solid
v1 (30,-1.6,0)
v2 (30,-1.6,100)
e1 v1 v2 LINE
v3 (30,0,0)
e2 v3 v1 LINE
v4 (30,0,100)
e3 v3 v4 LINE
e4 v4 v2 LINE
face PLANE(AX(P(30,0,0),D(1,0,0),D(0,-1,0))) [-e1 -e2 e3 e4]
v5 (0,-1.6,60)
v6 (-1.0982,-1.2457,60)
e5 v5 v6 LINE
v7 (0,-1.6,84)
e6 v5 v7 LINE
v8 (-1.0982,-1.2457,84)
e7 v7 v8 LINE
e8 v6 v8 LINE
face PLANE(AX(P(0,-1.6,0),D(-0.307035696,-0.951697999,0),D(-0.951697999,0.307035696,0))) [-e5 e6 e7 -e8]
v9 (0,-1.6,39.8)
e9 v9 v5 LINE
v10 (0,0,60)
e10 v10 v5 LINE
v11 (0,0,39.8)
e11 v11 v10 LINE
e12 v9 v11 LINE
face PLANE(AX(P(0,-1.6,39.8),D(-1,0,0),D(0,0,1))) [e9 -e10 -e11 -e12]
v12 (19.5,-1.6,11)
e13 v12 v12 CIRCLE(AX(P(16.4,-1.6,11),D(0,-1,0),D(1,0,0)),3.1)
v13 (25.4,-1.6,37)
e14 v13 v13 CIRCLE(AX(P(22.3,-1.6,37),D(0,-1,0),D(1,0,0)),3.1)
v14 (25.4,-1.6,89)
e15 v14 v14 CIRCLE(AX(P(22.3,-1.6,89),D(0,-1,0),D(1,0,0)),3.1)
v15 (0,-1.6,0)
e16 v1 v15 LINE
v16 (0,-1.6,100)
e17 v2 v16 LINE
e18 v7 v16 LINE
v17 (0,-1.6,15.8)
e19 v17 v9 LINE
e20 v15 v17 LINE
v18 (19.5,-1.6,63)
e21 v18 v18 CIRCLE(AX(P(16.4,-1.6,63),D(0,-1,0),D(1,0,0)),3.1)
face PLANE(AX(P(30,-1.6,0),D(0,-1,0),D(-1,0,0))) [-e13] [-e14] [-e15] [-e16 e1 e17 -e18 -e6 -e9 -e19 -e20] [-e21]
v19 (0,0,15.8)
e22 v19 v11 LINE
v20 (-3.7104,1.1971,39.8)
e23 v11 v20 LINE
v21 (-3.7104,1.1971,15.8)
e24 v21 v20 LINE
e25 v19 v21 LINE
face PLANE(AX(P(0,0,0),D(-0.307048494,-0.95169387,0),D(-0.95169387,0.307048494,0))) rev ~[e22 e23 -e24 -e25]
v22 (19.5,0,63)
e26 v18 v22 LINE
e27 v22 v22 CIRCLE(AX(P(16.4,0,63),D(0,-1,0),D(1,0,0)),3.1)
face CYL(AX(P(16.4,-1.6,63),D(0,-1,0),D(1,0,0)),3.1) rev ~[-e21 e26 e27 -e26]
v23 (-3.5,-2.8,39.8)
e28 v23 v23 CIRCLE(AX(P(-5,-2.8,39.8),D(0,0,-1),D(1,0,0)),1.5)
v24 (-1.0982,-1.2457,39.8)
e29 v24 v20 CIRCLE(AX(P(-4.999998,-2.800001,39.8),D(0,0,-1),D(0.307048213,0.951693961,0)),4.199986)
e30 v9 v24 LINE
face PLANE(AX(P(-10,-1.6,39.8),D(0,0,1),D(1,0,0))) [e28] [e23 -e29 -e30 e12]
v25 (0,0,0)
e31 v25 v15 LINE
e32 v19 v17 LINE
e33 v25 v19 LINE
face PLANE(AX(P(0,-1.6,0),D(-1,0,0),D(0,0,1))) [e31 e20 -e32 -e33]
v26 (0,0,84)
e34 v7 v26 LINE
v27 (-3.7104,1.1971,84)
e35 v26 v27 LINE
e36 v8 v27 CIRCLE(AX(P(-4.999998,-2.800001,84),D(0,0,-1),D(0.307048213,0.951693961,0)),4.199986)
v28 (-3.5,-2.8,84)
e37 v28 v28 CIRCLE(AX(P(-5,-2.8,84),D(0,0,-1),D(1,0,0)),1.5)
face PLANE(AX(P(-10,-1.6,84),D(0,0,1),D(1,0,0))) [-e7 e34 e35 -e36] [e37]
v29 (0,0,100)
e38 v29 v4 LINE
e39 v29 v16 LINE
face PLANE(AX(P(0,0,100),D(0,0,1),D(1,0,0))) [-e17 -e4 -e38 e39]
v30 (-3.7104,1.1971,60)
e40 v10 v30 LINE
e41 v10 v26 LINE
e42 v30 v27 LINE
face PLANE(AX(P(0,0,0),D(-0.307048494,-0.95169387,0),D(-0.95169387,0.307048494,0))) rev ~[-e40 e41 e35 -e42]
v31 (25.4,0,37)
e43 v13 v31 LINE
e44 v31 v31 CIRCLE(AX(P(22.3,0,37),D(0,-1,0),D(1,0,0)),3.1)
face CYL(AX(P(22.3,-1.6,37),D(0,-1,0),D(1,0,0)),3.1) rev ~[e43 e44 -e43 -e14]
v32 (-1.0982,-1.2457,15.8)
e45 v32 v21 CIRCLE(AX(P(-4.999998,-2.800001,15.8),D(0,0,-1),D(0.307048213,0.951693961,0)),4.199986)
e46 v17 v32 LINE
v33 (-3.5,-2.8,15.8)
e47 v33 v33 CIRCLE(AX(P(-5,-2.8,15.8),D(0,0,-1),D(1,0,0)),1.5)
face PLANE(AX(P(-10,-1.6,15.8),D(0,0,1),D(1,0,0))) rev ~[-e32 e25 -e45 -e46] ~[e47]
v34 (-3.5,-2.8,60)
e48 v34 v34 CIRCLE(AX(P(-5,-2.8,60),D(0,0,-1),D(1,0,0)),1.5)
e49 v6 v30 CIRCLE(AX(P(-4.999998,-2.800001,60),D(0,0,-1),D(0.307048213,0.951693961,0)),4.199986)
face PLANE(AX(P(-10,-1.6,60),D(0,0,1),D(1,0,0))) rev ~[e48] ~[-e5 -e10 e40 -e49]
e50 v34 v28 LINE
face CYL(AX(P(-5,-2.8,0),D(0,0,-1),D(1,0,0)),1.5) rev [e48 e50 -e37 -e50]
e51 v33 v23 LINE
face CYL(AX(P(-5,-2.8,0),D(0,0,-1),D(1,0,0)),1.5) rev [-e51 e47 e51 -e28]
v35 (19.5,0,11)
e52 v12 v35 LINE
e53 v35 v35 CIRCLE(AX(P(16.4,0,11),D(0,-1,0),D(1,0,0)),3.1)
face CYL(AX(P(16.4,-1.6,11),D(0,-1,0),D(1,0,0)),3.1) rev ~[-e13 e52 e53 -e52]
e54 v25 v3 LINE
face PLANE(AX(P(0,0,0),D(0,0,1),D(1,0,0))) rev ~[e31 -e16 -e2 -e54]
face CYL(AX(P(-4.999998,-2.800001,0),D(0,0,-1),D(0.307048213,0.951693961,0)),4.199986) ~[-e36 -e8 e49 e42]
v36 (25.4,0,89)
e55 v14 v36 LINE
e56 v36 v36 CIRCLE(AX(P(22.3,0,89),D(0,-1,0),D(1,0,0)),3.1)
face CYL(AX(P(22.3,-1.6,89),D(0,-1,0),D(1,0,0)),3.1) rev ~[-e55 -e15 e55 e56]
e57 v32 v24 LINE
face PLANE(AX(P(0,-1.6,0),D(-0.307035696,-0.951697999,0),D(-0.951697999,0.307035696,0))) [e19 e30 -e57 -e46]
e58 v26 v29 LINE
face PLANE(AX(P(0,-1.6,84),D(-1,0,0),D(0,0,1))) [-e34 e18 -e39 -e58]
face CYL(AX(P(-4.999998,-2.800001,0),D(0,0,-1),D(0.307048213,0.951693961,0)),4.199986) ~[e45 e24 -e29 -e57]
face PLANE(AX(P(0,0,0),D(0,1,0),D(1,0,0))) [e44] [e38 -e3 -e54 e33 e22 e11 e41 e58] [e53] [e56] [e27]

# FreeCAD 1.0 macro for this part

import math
import FreeCAD as App
import Part
import Sketcher
Q = App.Units.Quantity

doc = App.newDocument("Part")
body = doc.addObject("PartDesign::Body", "Body")

# Sketch on XY plane
sketch1 = body.newObject("Sketcher::SketchObject", "Sketch")
sketch1.AttachmentSupport = (doc.getObject("XY_Plane"), [""])
sketch1.MapMode = "FlatFace"
sketch1.addGeometry(Part.LineSegment(App.Vector(30, 0, 0), App.Vector(0, 0, 0)), False)
sketch1.addGeometry(Part.LineSegment(App.Vector(0, 0, 0), App.Vector(-3.7, 1.2, 0)), False)
sketch1.addGeometry(Part.ArcOfCircle(Part.Circle(App.Vector(-5, -2.8, 0), App.Vector(0, 0, 1), 4.2), math.radians(72), math.radians(382)), False)
sketch1.addGeometry(Part.LineSegment(App.Vector(-1.1, -1.2, 0), App.Vector(0, -1.6, 0)), False)
sketch1.addGeometry(Part.LineSegment(App.Vector(0, -1.6, 0), App.Vector(30, -1.6, 0)), False)
sketch1.addGeometry(Part.LineSegment(App.Vector(30, -1.6, 0), App.Vector(30, 0, 0)), False)
sketch1.addGeometry(Part.Circle(App.Vector(-5, -2.8, 0), App.Vector(0, 0, 1), 1.5), False)
sketch1.addConstraint(Sketcher.Constraint("Coincident", 0, 2, 1, 1))
sketch1.addConstraint(Sketcher.Constraint("Tangent", 1, 2, 2, 1))
sketch1.addConstraint(Sketcher.Constraint("Coincident", 2, 2, 3, 1))
sketch1.addConstraint(Sketcher.Constraint("Coincident", 3, 2, 4, 1))
sketch1.addConstraint(Sketcher.Constraint("Coincident", 4, 2, 5, 1))
sketch1.addConstraint(Sketcher.Constraint("Coincident", 5, 2, 0, 1))
sketch1.addConstraint(Sketcher.Constraint("Horizontal", 0))
sketch1.addConstraint(Sketcher.Constraint("Horizontal", 4))
sketch1.addConstraint(Sketcher.Constraint("Vertical", 5))
sketch1.addConstraint(Sketcher.Constraint("Coincident", 0, 2, -1, 1))
sketch1.addConstraint(Sketcher.Constraint("Coincident", 6, 3, 2, 3))
sketch1.addConstraint(Sketcher.Constraint("PointOnObject", 3, 2, -2))
sketch1.addConstraint(Sketcher.Constraint("Parallel", 1, 3))
sketch1.addConstraint(Sketcher.Constraint("Diameter", 6, Q("3 mm")))
sketch1.addConstraint(Sketcher.Constraint("Radius", 2, Q("4.2 mm")))
sketch1.addConstraint(Sketcher.Constraint("DistanceX", 0, 2, 0, 1, Q("30 mm")))
sketch1.addConstraint(Sketcher.Constraint("DistanceY", 5, 1, 5, 2, Q("1.6 mm")))
sketch1.addConstraint(Sketcher.Constraint("DistanceX", 2, 3, 4, 2, Q("35 mm")))
sketch1.addConstraint(Sketcher.Constraint("DistanceY", 2, 3, -1, 1, Q("2.8 mm")))
pad1 = body.newObject("PartDesign::Pad", "Pad")
pad1.Profile = sketch1
pad1.Length = 100

# Sketch on XZ plane
sketch2 = body.newObject("Sketcher::SketchObject", "Sketch001")
sketch2.AttachmentSupport = (doc.getObject("XZ_Plane"), [""])
sketch2.MapMode = "FlatFace"
sketch2.AttachmentOffset = App.Placement(App.Vector(0, 0, 1.6), App.Rotation())
sketch2.addGeometry(Part.LineSegment(App.Vector(0, 84, 0), App.Vector(0, 100, 0)), False)
sketch2.addGeometry(Part.LineSegment(App.Vector(0, 100, 0), App.Vector(-10, 100, 0)), False)
sketch2.addGeometry(Part.LineSegment(App.Vector(-10, 100, 0), App.Vector(-10, 84, 0)), False)
sketch2.addGeometry(Part.LineSegment(App.Vector(-10, 84, 0), App.Vector(0, 84, 0)), False)
sketch2.addGeometry(Part.LineSegment(App.Vector(0, -0.2, 0), App.Vector(0, 15.8, 0)), False)
sketch2.addGeometry(Part.LineSegment(App.Vector(0, 15.8, 0), App.Vector(-10, 15.8, 0)), False)
sketch2.addGeometry(Part.LineSegment(App.Vector(-10, 15.8, 0), App.Vector(-10, -0.2, 0)), False)
sketch2.addGeometry(Part.LineSegment(App.Vector(-10, -0.2, 0), App.Vector(0, -0.2, 0)), False)
sketch2.addGeometry(Part.LineSegment(App.Vector(0, 39.8, 0), App.Vector(0, 60, 0)), False)
sketch2.addGeometry(Part.LineSegment(App.Vector(0, 60, 0), App.Vector(-10, 60, 0)), False)
sketch2.addGeometry(Part.LineSegment(App.Vector(-10, 60, 0), App.Vector(-10, 39.8, 0)), False)
sketch2.addGeometry(Part.LineSegment(App.Vector(-10, 39.8, 0), App.Vector(0, 39.8, 0)), False)
sketch2.addGeometry(Part.Circle(App.Vector(22.3, 89, 0), App.Vector(0, 0, 1), 3.1), False)
sketch2.addGeometry(Part.Circle(App.Vector(16.4, 63, 0), App.Vector(0, 0, 1), 3.1), False)
sketch2.addGeometry(Part.Circle(App.Vector(22.3, 37, 0), App.Vector(0, 0, 1), 3.1), False)
sketch2.addGeometry(Part.Circle(App.Vector(16.4, 11, 0), App.Vector(0, 0, 1), 3.1), False)
sketch2.addConstraint(Sketcher.Constraint("Coincident", 0, 2, 1, 1))
sketch2.addConstraint(Sketcher.Constraint("Coincident", 1, 2, 2, 1))
sketch2.addConstraint(Sketcher.Constraint("Coincident", 2, 2, 3, 1))
sketch2.addConstraint(Sketcher.Constraint("Coincident", 3, 2, 0, 1))
sketch2.addConstraint(Sketcher.Constraint("Coincident", 4, 2, 5, 1))
sketch2.addConstraint(Sketcher.Constraint("Coincident", 5, 2, 6, 1))
sketch2.addConstraint(Sketcher.Constraint("Coincident", 6, 2, 7, 1))
sketch2.addConstraint(Sketcher.Constraint("Coincident", 7, 2, 4, 1))
sketch2.addConstraint(Sketcher.Constraint("Coincident", 8, 2, 9, 1))
sketch2.addConstraint(Sketcher.Constraint("Coincident", 9, 2, 10, 1))
sketch2.addConstraint(Sketcher.Constraint("Coincident", 10, 2, 11, 1))
sketch2.addConstraint(Sketcher.Constraint("Coincident", 11, 2, 8, 1))
sketch2.addConstraint(Sketcher.Constraint("Vertical", 0))
sketch2.addConstraint(Sketcher.Constraint("Horizontal", 1))
sketch2.addConstraint(Sketcher.Constraint("Vertical", 2))
sketch2.addConstraint(Sketcher.Constraint("Horizontal", 3))
sketch2.addConstraint(Sketcher.Constraint("Vertical", 4))
sketch2.addConstraint(Sketcher.Constraint("Horizontal", 5))
sketch2.addConstraint(Sketcher.Constraint("Vertical", 6))
sketch2.addConstraint(Sketcher.Constraint("Horizontal", 7))
sketch2.addConstraint(Sketcher.Constraint("Vertical", 8))
sketch2.addConstraint(Sketcher.Constraint("Horizontal", 9))
sketch2.addConstraint(Sketcher.Constraint("Vertical", 10))
sketch2.addConstraint(Sketcher.Constraint("Horizontal", 11))
sketch2.addConstraint(Sketcher.Constraint("Equal", 12, 13))
sketch2.addConstraint(Sketcher.Constraint("Equal", 13, 14))
sketch2.addConstraint(Sketcher.Constraint("Equal", 14, 15))
sketch2.addConstraint(Sketcher.Constraint("PointOnObject", 0, 2, -2))
sketch2.addConstraint(Sketcher.Constraint("PointOnObject", 4, 2, -2))
sketch2.addConstraint(Sketcher.Constraint("PointOnObject", 8, 2, -2))
sketch2.addConstraint(Sketcher.Constraint("Vertical", 12, 3, 14, 3))
sketch2.addConstraint(Sketcher.Constraint("Vertical", 13, 3, 15, 3))
sketch2.addConstraint(Sketcher.Constraint("Vertical", 2, 2, 5, 2))
sketch2.addConstraint(Sketcher.Constraint("Vertical", 6, 2, 9, 2))
sketch2.addConstraint(Sketcher.Constraint("Equal", 2, 4))
sketch2.addConstraint(Sketcher.Constraint("Diameter", 12, Q("6.2 mm")))
sketch2.addConstraint(Sketcher.Constraint("DistanceX", 1, 2, 1, 1, Q("10 mm")))
sketch2.addConstraint(Sketcher.Constraint("DistanceY", 0, 1, 0, 2, Q("16 mm")))
sketch2.addConstraint(Sketcher.Constraint("DistanceY", -1, 1, 14, 3, Q("37 mm")))
sketch2.addConstraint(Sketcher.Constraint("DistanceY", -1, 1, 15, 3, Q("11 mm")))
sketch2.addConstraint(Sketcher.Constraint("DistanceY", 12, 3, 0, 2, Q("11 mm")))
sketch2.addConstraint(Sketcher.Constraint("DistanceY", 13, 3, 0, 2, Q("37 mm")))
sketch2.addConstraint(Sketcher.Constraint("DistanceY", 8, 2, 3, 2, Q("24 mm")))
sketch2.addConstraint(Sketcher.Constraint("DistanceY", 5, 2, 10, 2, Q("24 mm")))
sketch2.addConstraint(Sketcher.Constraint("DistanceY", 8, 1, 8, 2, Q("20.2 mm")))
sketch2.addConstraint(Sketcher.Constraint("DistanceY", -1, 1, 12, 3, Q("89 mm")))
sketch2.addConstraint(Sketcher.Constraint("DistanceX", -1, 1, 12, 3, Q("22.3 mm")))
sketch2.addConstraint(Sketcher.Constraint("DistanceX", -1, 1, 13, 3, Q("16.4 mm")))
pocket1 = body.newObject("PartDesign::Pocket", "Pocket")
pocket1.Profile = sketch2
pocket1.Length = 100.2
pocket1.Midplane = True

doc.recompute()
